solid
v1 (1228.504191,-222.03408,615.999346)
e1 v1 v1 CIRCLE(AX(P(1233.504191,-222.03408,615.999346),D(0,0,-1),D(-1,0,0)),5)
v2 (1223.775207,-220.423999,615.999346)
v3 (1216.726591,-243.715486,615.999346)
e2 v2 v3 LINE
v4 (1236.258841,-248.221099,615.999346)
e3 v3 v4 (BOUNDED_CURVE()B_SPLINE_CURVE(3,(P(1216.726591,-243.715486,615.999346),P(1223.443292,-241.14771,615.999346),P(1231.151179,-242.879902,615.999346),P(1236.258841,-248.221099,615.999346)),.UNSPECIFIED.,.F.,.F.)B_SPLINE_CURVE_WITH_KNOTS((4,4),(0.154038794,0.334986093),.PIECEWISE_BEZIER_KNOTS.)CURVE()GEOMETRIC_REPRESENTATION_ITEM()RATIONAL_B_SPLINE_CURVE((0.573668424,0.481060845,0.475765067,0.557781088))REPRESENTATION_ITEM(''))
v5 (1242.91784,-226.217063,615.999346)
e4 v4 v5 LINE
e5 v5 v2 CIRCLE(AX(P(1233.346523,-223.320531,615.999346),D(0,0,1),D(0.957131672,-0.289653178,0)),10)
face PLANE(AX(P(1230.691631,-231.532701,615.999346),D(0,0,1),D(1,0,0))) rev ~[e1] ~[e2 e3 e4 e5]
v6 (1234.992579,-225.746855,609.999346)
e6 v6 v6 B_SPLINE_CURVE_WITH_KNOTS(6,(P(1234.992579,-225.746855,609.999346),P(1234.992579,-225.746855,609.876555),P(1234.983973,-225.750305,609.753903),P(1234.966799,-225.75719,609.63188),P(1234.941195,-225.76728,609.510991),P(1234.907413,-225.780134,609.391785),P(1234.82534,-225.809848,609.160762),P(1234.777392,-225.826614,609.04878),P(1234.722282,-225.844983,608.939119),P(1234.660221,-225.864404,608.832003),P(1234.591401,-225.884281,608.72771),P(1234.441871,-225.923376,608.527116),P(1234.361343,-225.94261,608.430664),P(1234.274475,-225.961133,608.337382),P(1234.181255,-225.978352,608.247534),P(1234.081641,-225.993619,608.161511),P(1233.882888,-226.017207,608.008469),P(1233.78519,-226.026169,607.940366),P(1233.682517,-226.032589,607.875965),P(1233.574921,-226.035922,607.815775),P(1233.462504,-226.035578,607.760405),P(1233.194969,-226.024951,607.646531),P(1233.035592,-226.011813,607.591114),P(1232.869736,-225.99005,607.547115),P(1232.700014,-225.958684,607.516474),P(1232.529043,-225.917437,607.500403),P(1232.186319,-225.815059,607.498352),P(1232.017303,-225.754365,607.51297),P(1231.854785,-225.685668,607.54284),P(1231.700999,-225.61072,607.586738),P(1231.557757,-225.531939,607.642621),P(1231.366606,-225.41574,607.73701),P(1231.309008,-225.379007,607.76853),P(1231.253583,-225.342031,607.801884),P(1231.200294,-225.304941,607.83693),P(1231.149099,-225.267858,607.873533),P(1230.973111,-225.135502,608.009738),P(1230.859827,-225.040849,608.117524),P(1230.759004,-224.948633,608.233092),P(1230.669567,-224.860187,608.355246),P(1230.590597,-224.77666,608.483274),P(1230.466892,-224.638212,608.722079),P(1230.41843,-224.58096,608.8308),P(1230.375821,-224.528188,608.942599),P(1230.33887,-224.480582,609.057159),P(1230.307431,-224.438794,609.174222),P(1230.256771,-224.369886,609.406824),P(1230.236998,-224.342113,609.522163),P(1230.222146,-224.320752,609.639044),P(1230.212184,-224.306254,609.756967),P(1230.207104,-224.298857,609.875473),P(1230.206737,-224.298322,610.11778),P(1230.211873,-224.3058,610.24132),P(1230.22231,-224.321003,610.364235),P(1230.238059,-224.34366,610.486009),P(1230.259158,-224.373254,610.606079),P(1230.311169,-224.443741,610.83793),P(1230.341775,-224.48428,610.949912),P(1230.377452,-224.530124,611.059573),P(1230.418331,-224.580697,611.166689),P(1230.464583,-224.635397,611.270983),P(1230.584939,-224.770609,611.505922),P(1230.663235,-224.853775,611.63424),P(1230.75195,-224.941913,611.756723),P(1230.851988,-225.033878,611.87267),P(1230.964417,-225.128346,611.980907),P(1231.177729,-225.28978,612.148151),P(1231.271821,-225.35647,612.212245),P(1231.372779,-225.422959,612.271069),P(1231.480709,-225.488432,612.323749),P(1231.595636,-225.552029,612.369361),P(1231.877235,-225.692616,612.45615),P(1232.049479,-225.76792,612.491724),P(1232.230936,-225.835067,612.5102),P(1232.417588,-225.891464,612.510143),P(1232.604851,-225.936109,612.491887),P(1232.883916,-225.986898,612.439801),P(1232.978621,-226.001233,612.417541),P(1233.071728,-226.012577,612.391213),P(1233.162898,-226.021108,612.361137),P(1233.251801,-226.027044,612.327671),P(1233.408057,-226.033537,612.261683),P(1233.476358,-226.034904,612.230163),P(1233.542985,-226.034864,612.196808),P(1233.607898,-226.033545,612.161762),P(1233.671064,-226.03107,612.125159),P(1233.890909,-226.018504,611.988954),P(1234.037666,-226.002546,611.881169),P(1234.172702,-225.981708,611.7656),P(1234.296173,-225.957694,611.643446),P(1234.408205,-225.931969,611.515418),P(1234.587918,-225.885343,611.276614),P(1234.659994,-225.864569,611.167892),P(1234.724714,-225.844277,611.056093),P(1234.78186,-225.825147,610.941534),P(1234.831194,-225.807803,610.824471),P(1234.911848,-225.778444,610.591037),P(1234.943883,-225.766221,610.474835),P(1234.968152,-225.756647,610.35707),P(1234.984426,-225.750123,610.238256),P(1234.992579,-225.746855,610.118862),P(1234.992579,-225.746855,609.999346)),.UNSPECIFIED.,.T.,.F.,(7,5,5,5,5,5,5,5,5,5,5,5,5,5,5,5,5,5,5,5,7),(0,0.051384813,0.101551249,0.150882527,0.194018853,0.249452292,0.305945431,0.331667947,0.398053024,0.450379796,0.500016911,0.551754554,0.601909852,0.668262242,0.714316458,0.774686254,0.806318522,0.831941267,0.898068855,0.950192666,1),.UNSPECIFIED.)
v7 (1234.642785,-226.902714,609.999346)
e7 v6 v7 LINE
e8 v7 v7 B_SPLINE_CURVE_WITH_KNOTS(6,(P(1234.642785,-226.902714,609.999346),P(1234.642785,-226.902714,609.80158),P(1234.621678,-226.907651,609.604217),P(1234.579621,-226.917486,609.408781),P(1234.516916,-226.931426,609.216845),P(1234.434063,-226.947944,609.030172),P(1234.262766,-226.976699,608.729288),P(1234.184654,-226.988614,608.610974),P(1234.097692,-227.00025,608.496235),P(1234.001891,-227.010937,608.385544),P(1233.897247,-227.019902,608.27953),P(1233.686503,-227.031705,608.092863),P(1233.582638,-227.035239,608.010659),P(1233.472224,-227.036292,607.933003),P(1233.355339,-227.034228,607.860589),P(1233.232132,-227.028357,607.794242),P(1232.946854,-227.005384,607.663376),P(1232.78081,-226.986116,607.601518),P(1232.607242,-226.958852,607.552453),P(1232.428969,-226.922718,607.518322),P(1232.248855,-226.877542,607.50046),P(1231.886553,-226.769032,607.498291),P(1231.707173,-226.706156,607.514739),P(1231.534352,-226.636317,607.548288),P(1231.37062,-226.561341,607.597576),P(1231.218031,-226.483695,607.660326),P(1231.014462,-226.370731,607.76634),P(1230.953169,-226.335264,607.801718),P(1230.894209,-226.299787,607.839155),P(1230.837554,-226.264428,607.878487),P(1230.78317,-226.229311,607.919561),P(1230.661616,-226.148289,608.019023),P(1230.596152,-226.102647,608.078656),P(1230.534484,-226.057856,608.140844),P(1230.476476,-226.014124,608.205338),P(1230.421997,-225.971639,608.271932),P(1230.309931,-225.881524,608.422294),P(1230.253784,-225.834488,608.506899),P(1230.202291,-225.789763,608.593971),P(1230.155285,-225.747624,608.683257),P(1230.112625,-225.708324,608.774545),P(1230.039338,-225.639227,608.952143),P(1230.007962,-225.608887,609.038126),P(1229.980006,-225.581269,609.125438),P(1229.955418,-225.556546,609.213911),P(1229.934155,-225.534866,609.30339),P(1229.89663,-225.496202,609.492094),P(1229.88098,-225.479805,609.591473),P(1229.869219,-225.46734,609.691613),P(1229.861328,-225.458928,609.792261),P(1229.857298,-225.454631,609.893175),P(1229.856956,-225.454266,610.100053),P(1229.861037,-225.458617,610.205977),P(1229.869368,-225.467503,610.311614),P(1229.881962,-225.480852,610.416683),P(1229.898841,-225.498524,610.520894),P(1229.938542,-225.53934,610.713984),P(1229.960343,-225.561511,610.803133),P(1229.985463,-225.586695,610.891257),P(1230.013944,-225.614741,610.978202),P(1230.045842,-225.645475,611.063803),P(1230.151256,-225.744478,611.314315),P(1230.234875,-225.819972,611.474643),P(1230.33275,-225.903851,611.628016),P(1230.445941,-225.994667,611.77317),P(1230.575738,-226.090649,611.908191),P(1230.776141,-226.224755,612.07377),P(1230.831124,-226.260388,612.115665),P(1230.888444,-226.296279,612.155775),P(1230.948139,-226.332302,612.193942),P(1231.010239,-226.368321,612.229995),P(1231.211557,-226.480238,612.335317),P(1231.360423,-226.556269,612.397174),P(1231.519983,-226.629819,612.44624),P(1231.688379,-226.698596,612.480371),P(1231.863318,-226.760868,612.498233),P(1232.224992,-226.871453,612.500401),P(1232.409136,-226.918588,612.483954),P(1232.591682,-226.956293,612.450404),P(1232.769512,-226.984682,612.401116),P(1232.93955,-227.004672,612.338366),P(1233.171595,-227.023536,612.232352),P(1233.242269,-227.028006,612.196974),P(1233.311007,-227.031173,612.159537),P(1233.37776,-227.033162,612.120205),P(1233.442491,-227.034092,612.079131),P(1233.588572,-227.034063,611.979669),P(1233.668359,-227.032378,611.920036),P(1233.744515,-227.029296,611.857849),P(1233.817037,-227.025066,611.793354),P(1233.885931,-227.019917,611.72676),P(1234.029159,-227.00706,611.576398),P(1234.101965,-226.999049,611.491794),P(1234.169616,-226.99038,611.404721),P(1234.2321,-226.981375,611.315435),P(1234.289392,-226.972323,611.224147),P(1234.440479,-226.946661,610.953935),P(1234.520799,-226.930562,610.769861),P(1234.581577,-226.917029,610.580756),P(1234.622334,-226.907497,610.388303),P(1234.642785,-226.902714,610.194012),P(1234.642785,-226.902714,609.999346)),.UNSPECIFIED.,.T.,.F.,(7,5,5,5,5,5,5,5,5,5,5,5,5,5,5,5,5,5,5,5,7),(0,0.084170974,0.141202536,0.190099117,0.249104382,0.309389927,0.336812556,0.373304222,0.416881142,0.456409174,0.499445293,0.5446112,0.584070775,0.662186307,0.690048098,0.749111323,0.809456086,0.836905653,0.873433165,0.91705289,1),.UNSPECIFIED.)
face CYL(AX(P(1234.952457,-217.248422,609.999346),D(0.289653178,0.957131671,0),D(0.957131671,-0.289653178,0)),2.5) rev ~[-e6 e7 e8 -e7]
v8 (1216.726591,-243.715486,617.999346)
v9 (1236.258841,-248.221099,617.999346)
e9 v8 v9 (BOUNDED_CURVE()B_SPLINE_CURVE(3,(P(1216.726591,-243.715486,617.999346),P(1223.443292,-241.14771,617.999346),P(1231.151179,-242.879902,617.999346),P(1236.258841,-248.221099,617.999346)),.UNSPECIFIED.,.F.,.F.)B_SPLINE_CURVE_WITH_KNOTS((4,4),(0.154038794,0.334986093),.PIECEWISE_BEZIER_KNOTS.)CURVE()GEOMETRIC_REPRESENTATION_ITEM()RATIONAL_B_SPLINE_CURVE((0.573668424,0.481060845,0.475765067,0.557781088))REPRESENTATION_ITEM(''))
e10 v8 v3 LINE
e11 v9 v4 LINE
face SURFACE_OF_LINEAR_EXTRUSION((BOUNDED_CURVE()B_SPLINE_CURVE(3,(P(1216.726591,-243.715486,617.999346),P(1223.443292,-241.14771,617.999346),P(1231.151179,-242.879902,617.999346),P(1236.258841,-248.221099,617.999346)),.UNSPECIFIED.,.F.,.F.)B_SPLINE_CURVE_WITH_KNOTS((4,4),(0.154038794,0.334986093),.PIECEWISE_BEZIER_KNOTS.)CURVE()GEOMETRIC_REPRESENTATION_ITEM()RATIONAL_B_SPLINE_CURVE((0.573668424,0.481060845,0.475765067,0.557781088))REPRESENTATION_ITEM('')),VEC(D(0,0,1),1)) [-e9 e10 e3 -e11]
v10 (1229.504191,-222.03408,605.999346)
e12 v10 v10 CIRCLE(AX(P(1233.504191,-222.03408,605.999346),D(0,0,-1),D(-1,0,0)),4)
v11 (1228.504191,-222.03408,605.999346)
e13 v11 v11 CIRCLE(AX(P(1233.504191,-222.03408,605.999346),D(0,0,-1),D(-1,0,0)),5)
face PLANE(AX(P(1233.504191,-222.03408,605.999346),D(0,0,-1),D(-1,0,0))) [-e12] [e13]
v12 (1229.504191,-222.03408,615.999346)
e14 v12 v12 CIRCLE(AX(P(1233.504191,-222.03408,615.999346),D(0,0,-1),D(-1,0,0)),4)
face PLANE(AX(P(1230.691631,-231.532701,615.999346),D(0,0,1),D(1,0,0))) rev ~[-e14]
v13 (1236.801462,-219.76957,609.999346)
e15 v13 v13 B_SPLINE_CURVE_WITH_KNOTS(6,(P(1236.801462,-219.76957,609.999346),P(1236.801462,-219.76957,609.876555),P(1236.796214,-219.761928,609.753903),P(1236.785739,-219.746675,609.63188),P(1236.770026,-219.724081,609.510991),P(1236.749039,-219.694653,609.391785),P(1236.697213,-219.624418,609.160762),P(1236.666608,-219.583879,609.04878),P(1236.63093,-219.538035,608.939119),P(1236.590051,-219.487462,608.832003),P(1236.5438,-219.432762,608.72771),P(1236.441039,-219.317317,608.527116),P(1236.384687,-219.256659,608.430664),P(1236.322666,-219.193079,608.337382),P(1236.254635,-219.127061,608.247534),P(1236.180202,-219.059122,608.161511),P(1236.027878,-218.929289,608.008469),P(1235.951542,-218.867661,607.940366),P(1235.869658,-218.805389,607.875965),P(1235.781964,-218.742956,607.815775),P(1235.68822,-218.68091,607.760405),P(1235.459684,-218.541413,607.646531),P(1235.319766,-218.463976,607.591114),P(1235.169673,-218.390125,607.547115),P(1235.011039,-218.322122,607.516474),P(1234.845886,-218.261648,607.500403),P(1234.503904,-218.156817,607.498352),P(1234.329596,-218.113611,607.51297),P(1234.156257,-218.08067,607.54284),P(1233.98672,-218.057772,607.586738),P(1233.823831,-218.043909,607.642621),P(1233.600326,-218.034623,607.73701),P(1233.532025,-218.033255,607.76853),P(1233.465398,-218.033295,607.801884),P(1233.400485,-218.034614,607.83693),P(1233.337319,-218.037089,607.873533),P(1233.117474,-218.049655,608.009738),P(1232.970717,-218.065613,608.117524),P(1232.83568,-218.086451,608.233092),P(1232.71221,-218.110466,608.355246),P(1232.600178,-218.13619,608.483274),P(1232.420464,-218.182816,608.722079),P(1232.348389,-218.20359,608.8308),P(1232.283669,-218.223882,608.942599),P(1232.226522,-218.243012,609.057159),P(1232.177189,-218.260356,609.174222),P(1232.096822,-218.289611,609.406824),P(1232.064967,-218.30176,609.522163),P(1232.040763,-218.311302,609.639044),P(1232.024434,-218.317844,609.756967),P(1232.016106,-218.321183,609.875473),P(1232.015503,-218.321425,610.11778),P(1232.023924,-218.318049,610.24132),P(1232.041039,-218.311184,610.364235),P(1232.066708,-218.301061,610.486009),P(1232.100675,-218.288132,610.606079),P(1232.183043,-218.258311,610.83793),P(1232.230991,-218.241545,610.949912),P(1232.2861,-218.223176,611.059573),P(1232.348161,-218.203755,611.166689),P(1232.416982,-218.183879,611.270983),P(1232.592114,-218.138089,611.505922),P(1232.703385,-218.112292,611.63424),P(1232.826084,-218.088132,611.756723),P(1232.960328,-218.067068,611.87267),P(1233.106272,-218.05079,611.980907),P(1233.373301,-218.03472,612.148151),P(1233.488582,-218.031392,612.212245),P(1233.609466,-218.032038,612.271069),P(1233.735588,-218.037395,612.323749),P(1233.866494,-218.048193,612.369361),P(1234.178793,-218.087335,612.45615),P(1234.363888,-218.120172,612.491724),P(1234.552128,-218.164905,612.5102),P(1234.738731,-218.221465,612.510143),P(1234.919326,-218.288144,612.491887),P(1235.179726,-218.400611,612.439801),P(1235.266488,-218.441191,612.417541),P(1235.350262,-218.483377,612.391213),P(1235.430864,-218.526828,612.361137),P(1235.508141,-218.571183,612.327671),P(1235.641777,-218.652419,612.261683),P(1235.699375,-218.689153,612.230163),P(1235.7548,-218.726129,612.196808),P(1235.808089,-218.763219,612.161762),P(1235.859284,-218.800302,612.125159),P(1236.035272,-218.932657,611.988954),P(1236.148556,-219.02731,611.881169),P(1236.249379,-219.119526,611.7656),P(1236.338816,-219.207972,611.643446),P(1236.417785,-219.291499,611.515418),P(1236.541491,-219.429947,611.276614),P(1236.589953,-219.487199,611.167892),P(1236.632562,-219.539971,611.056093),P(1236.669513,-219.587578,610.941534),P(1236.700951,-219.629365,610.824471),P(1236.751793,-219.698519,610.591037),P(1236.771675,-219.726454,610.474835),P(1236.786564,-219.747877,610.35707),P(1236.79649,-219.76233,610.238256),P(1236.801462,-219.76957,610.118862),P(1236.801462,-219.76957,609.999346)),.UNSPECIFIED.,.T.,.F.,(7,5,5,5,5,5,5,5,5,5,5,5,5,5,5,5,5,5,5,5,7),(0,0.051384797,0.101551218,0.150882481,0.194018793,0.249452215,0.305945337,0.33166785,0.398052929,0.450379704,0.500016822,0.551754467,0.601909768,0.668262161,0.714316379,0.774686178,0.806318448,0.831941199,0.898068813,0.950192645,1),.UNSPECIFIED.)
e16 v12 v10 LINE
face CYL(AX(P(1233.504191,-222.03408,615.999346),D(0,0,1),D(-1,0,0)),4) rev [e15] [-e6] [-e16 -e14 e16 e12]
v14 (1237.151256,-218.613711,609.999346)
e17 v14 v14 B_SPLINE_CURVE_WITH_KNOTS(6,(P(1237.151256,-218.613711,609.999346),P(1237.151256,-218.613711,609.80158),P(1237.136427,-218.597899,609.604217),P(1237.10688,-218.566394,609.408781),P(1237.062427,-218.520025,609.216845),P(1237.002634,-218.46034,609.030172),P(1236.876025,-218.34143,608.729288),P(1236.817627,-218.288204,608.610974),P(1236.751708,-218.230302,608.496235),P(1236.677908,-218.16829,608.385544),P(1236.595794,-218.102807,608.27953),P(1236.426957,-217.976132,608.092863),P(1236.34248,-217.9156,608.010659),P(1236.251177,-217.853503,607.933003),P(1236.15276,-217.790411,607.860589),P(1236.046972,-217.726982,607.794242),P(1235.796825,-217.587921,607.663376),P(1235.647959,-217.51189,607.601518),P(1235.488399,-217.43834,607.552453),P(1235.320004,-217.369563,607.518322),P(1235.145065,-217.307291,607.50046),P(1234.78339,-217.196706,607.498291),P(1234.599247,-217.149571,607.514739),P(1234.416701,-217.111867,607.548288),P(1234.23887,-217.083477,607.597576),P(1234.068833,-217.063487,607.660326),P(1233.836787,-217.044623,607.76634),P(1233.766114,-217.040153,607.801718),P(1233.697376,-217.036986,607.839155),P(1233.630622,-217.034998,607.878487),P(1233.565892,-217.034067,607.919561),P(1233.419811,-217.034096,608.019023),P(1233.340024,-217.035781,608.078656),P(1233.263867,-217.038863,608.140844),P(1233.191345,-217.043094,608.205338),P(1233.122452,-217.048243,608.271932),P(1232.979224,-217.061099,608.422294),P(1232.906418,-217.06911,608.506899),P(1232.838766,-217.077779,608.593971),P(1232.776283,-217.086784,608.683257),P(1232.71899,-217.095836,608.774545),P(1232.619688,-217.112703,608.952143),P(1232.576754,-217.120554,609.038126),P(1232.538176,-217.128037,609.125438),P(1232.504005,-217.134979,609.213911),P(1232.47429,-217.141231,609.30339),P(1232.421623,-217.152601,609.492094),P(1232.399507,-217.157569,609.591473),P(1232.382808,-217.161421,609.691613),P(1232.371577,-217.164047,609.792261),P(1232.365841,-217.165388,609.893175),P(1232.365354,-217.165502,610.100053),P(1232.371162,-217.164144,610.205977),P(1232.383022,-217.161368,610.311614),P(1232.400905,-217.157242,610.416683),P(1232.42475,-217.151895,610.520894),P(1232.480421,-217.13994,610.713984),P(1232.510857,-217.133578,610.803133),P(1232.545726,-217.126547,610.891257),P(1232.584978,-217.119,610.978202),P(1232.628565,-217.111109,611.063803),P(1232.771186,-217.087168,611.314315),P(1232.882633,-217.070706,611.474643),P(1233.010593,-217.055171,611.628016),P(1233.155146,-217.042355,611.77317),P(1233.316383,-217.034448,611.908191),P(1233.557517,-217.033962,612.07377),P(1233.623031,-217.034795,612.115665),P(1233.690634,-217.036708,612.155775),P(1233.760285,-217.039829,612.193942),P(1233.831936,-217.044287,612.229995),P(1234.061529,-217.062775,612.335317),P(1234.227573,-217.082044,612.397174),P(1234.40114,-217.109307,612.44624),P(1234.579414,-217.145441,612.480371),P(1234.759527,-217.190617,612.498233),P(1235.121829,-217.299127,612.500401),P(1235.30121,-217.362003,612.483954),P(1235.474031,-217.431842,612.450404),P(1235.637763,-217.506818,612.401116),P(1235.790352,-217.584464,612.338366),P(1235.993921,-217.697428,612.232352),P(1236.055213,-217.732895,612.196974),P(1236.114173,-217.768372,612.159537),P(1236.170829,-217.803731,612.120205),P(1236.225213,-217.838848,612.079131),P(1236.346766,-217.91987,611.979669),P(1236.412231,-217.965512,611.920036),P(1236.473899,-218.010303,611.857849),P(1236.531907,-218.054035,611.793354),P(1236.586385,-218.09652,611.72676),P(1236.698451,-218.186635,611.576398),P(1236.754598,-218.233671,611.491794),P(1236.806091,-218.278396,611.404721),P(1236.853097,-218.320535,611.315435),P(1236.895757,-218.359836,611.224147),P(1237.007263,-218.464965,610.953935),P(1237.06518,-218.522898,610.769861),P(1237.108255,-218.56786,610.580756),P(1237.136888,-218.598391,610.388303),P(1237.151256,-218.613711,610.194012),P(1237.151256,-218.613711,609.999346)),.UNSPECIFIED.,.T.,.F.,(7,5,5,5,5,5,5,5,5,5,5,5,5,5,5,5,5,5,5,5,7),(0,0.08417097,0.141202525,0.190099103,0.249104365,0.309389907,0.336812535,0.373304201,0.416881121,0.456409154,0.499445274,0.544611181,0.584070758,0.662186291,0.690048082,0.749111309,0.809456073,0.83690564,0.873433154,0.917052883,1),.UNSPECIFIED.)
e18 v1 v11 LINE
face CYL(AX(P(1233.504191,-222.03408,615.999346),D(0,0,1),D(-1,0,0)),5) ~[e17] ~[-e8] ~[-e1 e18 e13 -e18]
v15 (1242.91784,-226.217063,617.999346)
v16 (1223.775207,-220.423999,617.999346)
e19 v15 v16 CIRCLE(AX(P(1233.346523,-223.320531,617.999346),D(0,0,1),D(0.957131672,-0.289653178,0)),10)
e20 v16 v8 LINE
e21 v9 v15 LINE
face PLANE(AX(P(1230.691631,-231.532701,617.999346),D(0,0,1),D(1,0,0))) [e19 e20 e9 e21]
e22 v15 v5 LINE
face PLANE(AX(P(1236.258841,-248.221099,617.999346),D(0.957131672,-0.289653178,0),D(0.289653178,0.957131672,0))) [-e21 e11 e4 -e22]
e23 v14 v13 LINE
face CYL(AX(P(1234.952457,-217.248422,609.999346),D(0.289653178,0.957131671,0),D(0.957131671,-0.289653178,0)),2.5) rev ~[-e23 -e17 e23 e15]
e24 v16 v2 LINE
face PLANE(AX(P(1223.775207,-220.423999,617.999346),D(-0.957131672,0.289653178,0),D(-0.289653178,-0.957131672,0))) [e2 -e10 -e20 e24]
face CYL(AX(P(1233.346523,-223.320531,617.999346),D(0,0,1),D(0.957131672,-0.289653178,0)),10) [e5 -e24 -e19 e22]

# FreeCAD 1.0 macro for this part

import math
import FreeCAD as App
import Part
import Sketcher

V = App.Vector

doc = App.newDocument("Part")
body = doc.addObject("PartDesign::Body", "Body")

# Sketch on XY plane
sketch1 = doc.addObject("Sketcher::SketchObject", "Sketch")
body.addObject(sketch1)
sketch1.AttachmentSupport = (doc.XY_Plane, [""])
sketch1.MapMode = "FlatFace"
sketch1.AttachmentOffset = App.Placement(V(0, 0, 617.999346), App.Rotation())
sketch1.addGeometry([
    Part.LineSegment(V(1242.91784, -226.217063, 0), V(1236.258841, -248.221099, 0)),
    Part.BSplineCurve([V(1216.726591, -243.715486, 0), V(1223.443292, -241.14771, 0), V(1231.151179, -242.879902, 0), V(1236.258841, -248.221099, 0)], [4, 4], [0.154038794, 0.334986093], False, 3, [0.573668424, 0.481060845, 0.475765067, 0.557781088], False),
    Part.LineSegment(V(1216.726591, -243.715486, 0), V(1223.775207, -220.423999, 0)),
    Part.ArcOfCircle(Part.Circle(V(1233.346523, -223.320531, 0), V(0, 0, 1), 10), math.radians(-16.837193), math.radians(163.162807)),
], False)
sketch1.addConstraint([
    Sketcher.Constraint("Block", 1),
    Sketcher.Constraint("Coincident", 0, 2, 1, 2),
    Sketcher.Constraint("Coincident", 1, 1, 2, 1),
    Sketcher.Constraint("Coincident", 2, 2, 3, 2),
    Sketcher.Constraint("Coincident", 3, 1, 0, 1),
    Sketcher.Constraint("Radius", 3, 10.0),
    Sketcher.Constraint("DistanceY", 2, 2, -1, 1, 220.423999),
    Sketcher.Constraint("DistanceX", 0, 2, 3, 1, 6.658999),
    Sketcher.Constraint("Distance", 0, 22.98956),
    Sketcher.Constraint("DistanceY", 3, 3, -1, 1, 223.320531),
])
pad1 = doc.addObject("PartDesign::Pad", "Pad")
body.addObject(pad1)
pad1.Profile = sketch1
pad1.Length = 2
pad1.Reversed = True

# Sketch on XY plane
sketch2 = doc.addObject("Sketcher::SketchObject", "Sketch001")
body.addObject(sketch2)
sketch2.AttachmentSupport = (doc.XY_Plane, [""])
sketch2.MapMode = "FlatFace"
sketch2.AttachmentOffset = App.Placement(V(0, 0, 615.999346), App.Rotation())
sketch2.addGeometry([
    Part.Circle(V(1233.504191, -222.03408, 0), V(0, 0, 1), 5),
    Part.Circle(V(1233.504191, -222.03408, 0), V(0, 0, 1), 4),
], False)
sketch2.addConstraint([
    Sketcher.Constraint("Coincident", 1, 3, 0, 3),
    Sketcher.Constraint("Diameter", 0, 10.0),
    Sketcher.Constraint("Diameter", 1, 8.0),
    Sketcher.Constraint("DistanceX", -1, 1, 0, 3, 1233.504191),
    Sketcher.Constraint("DistanceY", 0, 3, -1, 1, 222.03408),
])
pad2 = doc.addObject("PartDesign::Pad", "Pad001")
body.addObject(pad2)
pad2.Profile = sketch2
pad2.Length = 10
pad2.Reversed = True

# Sketch on an angled plane
sketch3 = doc.addObject("Sketcher::SketchObject", "Sketch002")
body.addObject(sketch3)
sketch3.Placement = App.Placement(V(43.382098, 143.35206, 0), App.Rotation(V(0.957131671, -0.289653178, 0), V(0, 0, -0.999999999), V(0.289653178, 0.957131671, 0), "ZXY"))
sketch3.addGeometry(Part.Circle(V(1244.938804, -609.999345, 0), V(0, 0, 1), 2.5), False)
sketch3.addConstraint([
    Sketcher.Constraint("Diameter", 0, 5.0),
    Sketcher.Constraint("DistanceX", -1, 1, 0, 3, 1244.938804),
    Sketcher.Constraint("DistanceY", 0, 3, -1, 1, 609.999345),
])
pocket1 = doc.addObject("PartDesign::Pocket", "Pocket")
body.addObject(pocket1)
pocket1.Profile = sketch3
pocket1.Length = 20

doc.recompute()
